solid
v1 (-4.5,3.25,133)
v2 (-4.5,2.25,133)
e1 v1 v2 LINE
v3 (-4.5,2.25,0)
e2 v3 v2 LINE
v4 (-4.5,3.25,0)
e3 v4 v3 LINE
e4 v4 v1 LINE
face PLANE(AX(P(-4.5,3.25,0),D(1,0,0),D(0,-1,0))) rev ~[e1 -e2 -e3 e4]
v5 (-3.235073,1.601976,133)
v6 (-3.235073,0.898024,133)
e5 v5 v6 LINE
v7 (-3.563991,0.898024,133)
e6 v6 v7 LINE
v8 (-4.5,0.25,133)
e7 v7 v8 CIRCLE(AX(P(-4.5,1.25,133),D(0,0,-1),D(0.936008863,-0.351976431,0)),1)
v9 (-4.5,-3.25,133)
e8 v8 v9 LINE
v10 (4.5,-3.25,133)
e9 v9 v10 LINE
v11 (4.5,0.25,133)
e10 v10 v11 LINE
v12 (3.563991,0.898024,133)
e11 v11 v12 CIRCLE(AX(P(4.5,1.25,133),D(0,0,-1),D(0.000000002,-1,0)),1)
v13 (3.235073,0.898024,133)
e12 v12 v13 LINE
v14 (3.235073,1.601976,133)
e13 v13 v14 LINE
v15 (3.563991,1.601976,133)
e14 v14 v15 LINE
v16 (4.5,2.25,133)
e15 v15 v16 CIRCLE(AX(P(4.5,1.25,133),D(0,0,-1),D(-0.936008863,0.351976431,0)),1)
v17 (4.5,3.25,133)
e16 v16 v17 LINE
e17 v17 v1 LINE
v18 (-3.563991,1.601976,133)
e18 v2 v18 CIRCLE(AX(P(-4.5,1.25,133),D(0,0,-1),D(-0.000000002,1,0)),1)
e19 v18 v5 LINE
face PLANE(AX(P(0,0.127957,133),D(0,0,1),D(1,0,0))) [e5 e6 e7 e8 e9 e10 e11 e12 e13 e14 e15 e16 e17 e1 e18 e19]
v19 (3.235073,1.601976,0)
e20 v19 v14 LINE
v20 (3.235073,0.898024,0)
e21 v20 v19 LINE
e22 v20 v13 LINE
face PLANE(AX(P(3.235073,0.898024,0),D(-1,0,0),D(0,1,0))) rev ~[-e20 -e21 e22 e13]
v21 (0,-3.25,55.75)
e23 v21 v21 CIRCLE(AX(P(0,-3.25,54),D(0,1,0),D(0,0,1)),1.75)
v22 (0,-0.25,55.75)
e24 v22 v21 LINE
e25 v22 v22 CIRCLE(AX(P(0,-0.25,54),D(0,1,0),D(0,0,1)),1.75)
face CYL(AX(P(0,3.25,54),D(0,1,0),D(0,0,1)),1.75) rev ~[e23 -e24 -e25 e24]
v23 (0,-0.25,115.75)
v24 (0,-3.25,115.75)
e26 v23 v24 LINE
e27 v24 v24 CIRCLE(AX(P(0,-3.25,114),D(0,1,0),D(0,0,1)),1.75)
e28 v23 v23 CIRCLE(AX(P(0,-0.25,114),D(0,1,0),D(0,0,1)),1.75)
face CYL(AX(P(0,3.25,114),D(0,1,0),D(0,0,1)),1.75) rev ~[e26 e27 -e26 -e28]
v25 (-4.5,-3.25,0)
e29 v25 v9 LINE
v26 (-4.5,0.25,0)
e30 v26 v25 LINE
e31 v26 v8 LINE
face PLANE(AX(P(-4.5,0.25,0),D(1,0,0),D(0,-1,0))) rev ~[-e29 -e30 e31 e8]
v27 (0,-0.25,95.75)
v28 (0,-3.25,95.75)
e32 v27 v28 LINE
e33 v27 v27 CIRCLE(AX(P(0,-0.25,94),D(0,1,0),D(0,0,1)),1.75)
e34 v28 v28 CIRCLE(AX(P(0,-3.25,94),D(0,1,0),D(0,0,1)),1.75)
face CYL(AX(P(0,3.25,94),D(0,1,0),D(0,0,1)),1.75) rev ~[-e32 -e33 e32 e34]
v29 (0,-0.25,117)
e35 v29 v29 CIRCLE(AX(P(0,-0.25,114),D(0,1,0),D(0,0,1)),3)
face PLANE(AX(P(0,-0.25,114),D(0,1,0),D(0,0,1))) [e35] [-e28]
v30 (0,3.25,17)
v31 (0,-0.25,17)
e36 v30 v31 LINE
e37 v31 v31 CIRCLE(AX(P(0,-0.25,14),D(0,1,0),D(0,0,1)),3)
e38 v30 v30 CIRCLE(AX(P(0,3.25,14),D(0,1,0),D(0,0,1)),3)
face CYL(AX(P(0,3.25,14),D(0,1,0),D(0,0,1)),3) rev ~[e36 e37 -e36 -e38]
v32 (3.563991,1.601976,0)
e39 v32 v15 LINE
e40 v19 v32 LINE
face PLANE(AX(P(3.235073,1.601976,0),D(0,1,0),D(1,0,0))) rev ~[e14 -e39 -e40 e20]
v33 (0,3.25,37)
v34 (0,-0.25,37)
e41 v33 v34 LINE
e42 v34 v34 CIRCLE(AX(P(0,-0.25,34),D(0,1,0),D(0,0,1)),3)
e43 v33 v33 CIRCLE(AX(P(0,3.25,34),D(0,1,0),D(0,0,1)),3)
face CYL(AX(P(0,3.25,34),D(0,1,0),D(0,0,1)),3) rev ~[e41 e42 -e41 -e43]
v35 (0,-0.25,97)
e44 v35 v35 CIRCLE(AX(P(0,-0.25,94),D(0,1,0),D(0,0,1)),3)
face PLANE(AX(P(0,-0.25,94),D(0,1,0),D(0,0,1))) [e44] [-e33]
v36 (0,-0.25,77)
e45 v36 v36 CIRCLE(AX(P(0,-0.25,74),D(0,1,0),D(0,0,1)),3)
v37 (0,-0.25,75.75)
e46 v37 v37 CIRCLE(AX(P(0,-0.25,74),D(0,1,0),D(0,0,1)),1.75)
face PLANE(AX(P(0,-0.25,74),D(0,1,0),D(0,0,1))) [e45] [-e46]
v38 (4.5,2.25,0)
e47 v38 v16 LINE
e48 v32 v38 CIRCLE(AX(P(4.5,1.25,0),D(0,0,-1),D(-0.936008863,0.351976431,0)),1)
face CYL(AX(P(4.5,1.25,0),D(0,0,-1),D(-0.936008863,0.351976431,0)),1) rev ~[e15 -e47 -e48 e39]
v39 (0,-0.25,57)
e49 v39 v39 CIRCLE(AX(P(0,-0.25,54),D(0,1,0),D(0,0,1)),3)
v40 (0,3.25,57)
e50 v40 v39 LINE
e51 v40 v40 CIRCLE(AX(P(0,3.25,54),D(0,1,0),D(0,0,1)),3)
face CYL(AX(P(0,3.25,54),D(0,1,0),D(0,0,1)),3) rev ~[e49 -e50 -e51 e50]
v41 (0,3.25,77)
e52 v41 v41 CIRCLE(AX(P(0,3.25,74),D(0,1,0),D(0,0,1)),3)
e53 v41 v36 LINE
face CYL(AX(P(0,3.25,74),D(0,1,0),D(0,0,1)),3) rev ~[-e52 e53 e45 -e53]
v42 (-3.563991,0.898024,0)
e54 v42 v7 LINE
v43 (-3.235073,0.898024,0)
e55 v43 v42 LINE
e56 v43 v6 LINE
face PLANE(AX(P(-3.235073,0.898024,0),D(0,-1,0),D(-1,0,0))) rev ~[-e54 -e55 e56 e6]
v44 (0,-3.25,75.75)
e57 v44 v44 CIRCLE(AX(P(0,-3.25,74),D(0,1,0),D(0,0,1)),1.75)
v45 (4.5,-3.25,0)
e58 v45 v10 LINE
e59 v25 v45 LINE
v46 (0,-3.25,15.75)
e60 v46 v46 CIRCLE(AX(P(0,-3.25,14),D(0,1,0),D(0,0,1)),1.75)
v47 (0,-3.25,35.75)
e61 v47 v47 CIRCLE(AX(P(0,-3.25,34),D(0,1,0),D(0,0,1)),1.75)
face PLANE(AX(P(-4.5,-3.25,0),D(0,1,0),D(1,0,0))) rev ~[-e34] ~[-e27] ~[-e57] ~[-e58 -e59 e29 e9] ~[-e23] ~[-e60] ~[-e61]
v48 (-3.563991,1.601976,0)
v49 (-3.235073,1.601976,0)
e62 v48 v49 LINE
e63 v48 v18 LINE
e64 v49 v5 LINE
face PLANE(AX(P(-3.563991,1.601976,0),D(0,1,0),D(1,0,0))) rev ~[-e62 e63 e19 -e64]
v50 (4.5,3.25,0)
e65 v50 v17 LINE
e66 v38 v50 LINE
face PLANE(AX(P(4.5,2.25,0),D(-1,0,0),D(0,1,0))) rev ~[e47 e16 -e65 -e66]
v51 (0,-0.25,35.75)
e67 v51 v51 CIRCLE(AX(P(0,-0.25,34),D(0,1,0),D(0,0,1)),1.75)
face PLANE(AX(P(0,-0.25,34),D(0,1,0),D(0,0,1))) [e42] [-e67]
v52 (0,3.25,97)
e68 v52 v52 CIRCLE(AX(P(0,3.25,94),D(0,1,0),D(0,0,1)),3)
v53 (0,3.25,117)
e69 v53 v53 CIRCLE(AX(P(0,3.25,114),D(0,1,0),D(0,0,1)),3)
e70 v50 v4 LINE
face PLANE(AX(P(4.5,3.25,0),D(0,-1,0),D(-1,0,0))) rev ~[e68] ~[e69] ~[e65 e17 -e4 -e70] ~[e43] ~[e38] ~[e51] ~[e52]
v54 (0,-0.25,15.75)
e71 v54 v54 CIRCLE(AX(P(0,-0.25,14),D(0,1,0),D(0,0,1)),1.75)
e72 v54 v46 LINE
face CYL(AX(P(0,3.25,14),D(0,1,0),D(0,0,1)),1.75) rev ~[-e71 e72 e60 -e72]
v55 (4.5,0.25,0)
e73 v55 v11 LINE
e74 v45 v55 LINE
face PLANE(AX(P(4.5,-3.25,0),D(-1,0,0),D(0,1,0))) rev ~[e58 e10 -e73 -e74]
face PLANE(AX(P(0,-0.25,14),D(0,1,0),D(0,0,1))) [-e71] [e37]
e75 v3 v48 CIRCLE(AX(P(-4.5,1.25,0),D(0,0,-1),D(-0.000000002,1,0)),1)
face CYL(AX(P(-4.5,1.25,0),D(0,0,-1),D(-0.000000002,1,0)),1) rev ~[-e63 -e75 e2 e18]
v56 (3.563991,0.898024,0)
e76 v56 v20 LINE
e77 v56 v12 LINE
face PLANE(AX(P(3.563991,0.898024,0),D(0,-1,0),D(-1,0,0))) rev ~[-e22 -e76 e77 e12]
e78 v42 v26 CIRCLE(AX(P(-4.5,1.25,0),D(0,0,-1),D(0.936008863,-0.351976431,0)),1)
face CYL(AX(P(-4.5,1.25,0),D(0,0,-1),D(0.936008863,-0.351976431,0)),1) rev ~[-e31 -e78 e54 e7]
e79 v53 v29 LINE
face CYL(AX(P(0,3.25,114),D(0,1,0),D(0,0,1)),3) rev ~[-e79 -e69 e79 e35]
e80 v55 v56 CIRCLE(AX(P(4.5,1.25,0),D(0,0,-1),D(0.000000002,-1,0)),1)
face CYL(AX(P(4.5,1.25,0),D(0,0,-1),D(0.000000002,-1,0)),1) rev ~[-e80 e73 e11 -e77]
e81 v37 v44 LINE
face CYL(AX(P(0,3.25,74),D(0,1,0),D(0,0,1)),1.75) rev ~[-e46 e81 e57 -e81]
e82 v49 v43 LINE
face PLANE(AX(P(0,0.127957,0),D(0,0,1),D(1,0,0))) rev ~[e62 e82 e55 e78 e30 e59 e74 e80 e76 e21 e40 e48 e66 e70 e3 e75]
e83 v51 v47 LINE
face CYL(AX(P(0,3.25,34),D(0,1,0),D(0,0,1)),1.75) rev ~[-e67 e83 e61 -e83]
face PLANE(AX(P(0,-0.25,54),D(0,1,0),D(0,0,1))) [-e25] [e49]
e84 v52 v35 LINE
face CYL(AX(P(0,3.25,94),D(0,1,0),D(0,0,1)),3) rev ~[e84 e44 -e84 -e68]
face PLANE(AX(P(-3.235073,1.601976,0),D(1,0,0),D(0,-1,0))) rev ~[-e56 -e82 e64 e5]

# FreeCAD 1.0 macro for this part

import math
import FreeCAD as App
import Part
import Sketcher

V = App.Vector
Q = App.Units.Quantity

doc = App.newDocument("Part")
body = doc.addObject("PartDesign::Body", "Body")

# Sketch on XY plane
sketch1 = doc.addObject("Sketcher::SketchObject", "Sketch")
body.addObject(sketch1)
sketch1.AttachmentSupport = (doc.XY_Plane, [""])
sketch1.MapMode = "FlatFace"
sketch1.addGeometry(Part.LineSegment(V(-4.5, -3.25, 0), V(4.5, -3.25, 0)), False)
sketch1.addGeometry(Part.LineSegment(V(4.5, -3.25, 0), V(4.5, 0.25, 0)), False)
sketch1.addGeometry(Part.ArcOfCircle(Part.Circle(V(4.5, 1.25, 0), V(0, 0, 1), 1), math.radians(-159.39175), math.radians(-90)), False)
sketch1.addGeometry(Part.LineSegment(V(3.563991, 0.898024, 0), V(3.235073, 0.898024, 0)), False)
sketch1.addGeometry(Part.LineSegment(V(3.235073, 0.898024, 0), V(3.235073, 1.601976, 0)), False)
sketch1.addGeometry(Part.LineSegment(V(3.235073, 1.601976, 0), V(3.563991, 1.601976, 0)), False)
sketch1.addGeometry(Part.ArcOfCircle(Part.Circle(V(4.5, 1.25, 0), V(0, 0, 1), 1), math.radians(90), math.radians(159.39175)), False)
sketch1.addGeometry(Part.LineSegment(V(4.5, 2.25, 0), V(4.5, 3.25, 0)), False)
sketch1.addGeometry(Part.LineSegment(V(4.5, 3.25, 0), V(-4.5, 3.25, 0)), False)
sketch1.addGeometry(Part.LineSegment(V(-4.5, 3.25, 0), V(-4.5, 2.25, 0)), False)
sketch1.addGeometry(Part.ArcOfCircle(Part.Circle(V(-4.5, 1.25, 0), V(0, 0, 1), 1), math.radians(20.60825), math.radians(90)), False)
sketch1.addGeometry(Part.LineSegment(V(-3.563991, 1.601976, 0), V(-3.235073, 1.601976, 0)), False)
sketch1.addGeometry(Part.LineSegment(V(-3.235073, 1.601976, 0), V(-3.235073, 0.898024, 0)), False)
sketch1.addGeometry(Part.LineSegment(V(-3.235073, 0.898024, 0), V(-3.563991, 0.898024, 0)), False)
sketch1.addGeometry(Part.ArcOfCircle(Part.Circle(V(-4.5, 1.25, 0), V(0, 0, 1), 1), math.radians(-90), math.radians(-20.60825)), False)
sketch1.addGeometry(Part.LineSegment(V(-4.5, 0.25, 0), V(-4.5, -3.25, 0)), False)
sketch1.addConstraint(Sketcher.Constraint("Coincident", 0, 2, 1, 1))
sketch1.addConstraint(Sketcher.Constraint("Coincident", 1, 2, 2, 2))
sketch1.addConstraint(Sketcher.Constraint("Coincident", 2, 1, 3, 1))
sketch1.addConstraint(Sketcher.Constraint("Coincident", 3, 2, 4, 1))
sketch1.addConstraint(Sketcher.Constraint("Coincident", 4, 2, 5, 1))
sketch1.addConstraint(Sketcher.Constraint("Coincident", 5, 2, 6, 2))
sketch1.addConstraint(Sketcher.Constraint("Coincident", 6, 1, 7, 1))
sketch1.addConstraint(Sketcher.Constraint("Coincident", 7, 2, 8, 1))
sketch1.addConstraint(Sketcher.Constraint("Coincident", 8, 2, 9, 1))
sketch1.addConstraint(Sketcher.Constraint("Coincident", 9, 2, 10, 2))
sketch1.addConstraint(Sketcher.Constraint("Coincident", 10, 1, 11, 1))
sketch1.addConstraint(Sketcher.Constraint("Coincident", 11, 2, 12, 1))
sketch1.addConstraint(Sketcher.Constraint("Coincident", 12, 2, 13, 1))
sketch1.addConstraint(Sketcher.Constraint("Coincident", 13, 2, 14, 2))
sketch1.addConstraint(Sketcher.Constraint("Coincident", 14, 1, 15, 1))
sketch1.addConstraint(Sketcher.Constraint("Coincident", 15, 2, 0, 1))
sketch1.addConstraint(Sketcher.Constraint("Horizontal", 0))
sketch1.addConstraint(Sketcher.Constraint("Vertical", 1))
sketch1.addConstraint(Sketcher.Constraint("Horizontal", 3))
sketch1.addConstraint(Sketcher.Constraint("Vertical", 4))
sketch1.addConstraint(Sketcher.Constraint("Horizontal", 5))
sketch1.addConstraint(Sketcher.Constraint("Vertical", 7))
sketch1.addConstraint(Sketcher.Constraint("Horizontal", 8))
sketch1.addConstraint(Sketcher.Constraint("Vertical", 9))
sketch1.addConstraint(Sketcher.Constraint("Horizontal", 11))
sketch1.addConstraint(Sketcher.Constraint("Vertical", 12))
sketch1.addConstraint(Sketcher.Constraint("Horizontal", 13))
sketch1.addConstraint(Sketcher.Constraint("Vertical", 15))
sketch1.addConstraint(Sketcher.Constraint("Coincident", 6, 3, 2, 3))
sketch1.addConstraint(Sketcher.Constraint("Coincident", 14, 3, 10, 3))
sketch1.addConstraint(Sketcher.Constraint("Equal", 2, 6))
sketch1.addConstraint(Sketcher.Constraint("Equal", 6, 10))
sketch1.addConstraint(Sketcher.Constraint("Equal", 10, 14))
sketch1.addConstraint(Sketcher.Constraint("Symmetric", 0, 2, 8, 2, -1, 1))
sketch1.addConstraint(Sketcher.Constraint("Symmetric", 2, 3, 10, 3, -2))
sketch1.addConstraint(Sketcher.Constraint("Symmetric", 4, 2, 11, 2, -2))
sketch1.addConstraint(Sketcher.Constraint("Horizontal", 3, 2, 12, 2))
sketch1.addConstraint(Sketcher.Constraint("Vertical", 6, 3, 0, 2))
sketch1.addConstraint(Sketcher.Constraint("Vertical", 2, 1, 5, 2))
sketch1.addConstraint(Sketcher.Constraint("Vertical", 1, 2, 6, 1))
sketch1.addConstraint(Sketcher.Constraint("Vertical", 9, 2, 14, 1))
sketch1.addConstraint(Sketcher.Constraint("Radius", 2, Q("1 mm")))
sketch1.addConstraint(Sketcher.Constraint("DistanceX", 0, 1, 0, 2, Q("9 mm")))
sketch1.addConstraint(Sketcher.Constraint("DistanceY", 7, 1, 7, 2, Q("1 mm")))
sketch1.addConstraint(Sketcher.Constraint("DistanceY", 1, 1, 1, 2, Q("3.5 mm")))
sketch1.addConstraint(Sketcher.Constraint("DistanceX", 3, 2, 3, 1, Q("0.328918 mm")))
sketch1.addConstraint(Sketcher.Constraint("DistanceY", 4, 1, 4, 2, Q("0.703953 mm")))
pad1 = doc.addObject("PartDesign::Pad", "Pad")
body.addObject(pad1)
pad1.Profile = sketch1
pad1.Length = 133

# Sketch on XZ plane
sketch2 = doc.addObject("Sketcher::SketchObject", "Sketch001")
body.addObject(sketch2)
sketch2.AttachmentSupport = (doc.XZ_Plane, [""])
sketch2.MapMode = "FlatFace"
sketch2.AttachmentOffset = App.Placement(V(0, 0, -3.25), App.Rotation())
sketch2.addGeometry(Part.Circle(V(0, 14, 0), V(0, 0, 1), 3), False)
sketch2.addConstraint(Sketcher.Constraint("PointOnObject", 0, 3, -2))
sketch2.addConstraint(Sketcher.Constraint("Diameter", 0, Q("6 mm")))
sketch2.addConstraint(Sketcher.Constraint("DistanceY", -1, 1, 0, 3, Q("14 mm")))
pocket1 = doc.addObject("PartDesign::Pocket", "Pocket")
body.addObject(pocket1)
pocket1.Profile = sketch2
pocket1.Length = 3.5
pocket1.Reversed = True

# Sketch on XZ plane
sketch3 = doc.addObject("Sketcher::SketchObject", "Sketch002")
body.addObject(sketch3)
sketch3.AttachmentSupport = (doc.XZ_Plane, [""])
sketch3.MapMode = "FlatFace"
sketch3.AttachmentOffset = App.Placement(V(0, 0, -3.25), App.Rotation())
sketch3.addGeometry(Part.Circle(V(0, 14, 0), V(0, 0, 1), 1.75), False)
sketch3.addConstraint(Sketcher.Constraint("PointOnObject", 0, 3, -2))
sketch3.addConstraint(Sketcher.Constraint("Diameter", 0, Q("3.5 mm")))
sketch3.addConstraint(Sketcher.Constraint("DistanceY", -1, 1, 0, 3, Q("14 mm")))
pocket2 = doc.addObject("PartDesign::Pocket", "Pocket001")
body.addObject(pocket2)
pocket2.Profile = sketch3
pocket2.Type = "ThroughAll"
pocket2.Reversed = True
doc.recompute()

linearpattern = doc.addObject("PartDesign::LinearPattern", "LinearPattern")
body.addObject(linearpattern)
linearpattern.Originals = [pocket1, pocket2]
linearpattern.Direction = (doc.Z_Axis, [""])
linearpattern.Mode = "offset"
linearpattern.Offset = 20
linearpattern.Occurrences = 6
body.Tip = linearpattern

doc.recompute()
